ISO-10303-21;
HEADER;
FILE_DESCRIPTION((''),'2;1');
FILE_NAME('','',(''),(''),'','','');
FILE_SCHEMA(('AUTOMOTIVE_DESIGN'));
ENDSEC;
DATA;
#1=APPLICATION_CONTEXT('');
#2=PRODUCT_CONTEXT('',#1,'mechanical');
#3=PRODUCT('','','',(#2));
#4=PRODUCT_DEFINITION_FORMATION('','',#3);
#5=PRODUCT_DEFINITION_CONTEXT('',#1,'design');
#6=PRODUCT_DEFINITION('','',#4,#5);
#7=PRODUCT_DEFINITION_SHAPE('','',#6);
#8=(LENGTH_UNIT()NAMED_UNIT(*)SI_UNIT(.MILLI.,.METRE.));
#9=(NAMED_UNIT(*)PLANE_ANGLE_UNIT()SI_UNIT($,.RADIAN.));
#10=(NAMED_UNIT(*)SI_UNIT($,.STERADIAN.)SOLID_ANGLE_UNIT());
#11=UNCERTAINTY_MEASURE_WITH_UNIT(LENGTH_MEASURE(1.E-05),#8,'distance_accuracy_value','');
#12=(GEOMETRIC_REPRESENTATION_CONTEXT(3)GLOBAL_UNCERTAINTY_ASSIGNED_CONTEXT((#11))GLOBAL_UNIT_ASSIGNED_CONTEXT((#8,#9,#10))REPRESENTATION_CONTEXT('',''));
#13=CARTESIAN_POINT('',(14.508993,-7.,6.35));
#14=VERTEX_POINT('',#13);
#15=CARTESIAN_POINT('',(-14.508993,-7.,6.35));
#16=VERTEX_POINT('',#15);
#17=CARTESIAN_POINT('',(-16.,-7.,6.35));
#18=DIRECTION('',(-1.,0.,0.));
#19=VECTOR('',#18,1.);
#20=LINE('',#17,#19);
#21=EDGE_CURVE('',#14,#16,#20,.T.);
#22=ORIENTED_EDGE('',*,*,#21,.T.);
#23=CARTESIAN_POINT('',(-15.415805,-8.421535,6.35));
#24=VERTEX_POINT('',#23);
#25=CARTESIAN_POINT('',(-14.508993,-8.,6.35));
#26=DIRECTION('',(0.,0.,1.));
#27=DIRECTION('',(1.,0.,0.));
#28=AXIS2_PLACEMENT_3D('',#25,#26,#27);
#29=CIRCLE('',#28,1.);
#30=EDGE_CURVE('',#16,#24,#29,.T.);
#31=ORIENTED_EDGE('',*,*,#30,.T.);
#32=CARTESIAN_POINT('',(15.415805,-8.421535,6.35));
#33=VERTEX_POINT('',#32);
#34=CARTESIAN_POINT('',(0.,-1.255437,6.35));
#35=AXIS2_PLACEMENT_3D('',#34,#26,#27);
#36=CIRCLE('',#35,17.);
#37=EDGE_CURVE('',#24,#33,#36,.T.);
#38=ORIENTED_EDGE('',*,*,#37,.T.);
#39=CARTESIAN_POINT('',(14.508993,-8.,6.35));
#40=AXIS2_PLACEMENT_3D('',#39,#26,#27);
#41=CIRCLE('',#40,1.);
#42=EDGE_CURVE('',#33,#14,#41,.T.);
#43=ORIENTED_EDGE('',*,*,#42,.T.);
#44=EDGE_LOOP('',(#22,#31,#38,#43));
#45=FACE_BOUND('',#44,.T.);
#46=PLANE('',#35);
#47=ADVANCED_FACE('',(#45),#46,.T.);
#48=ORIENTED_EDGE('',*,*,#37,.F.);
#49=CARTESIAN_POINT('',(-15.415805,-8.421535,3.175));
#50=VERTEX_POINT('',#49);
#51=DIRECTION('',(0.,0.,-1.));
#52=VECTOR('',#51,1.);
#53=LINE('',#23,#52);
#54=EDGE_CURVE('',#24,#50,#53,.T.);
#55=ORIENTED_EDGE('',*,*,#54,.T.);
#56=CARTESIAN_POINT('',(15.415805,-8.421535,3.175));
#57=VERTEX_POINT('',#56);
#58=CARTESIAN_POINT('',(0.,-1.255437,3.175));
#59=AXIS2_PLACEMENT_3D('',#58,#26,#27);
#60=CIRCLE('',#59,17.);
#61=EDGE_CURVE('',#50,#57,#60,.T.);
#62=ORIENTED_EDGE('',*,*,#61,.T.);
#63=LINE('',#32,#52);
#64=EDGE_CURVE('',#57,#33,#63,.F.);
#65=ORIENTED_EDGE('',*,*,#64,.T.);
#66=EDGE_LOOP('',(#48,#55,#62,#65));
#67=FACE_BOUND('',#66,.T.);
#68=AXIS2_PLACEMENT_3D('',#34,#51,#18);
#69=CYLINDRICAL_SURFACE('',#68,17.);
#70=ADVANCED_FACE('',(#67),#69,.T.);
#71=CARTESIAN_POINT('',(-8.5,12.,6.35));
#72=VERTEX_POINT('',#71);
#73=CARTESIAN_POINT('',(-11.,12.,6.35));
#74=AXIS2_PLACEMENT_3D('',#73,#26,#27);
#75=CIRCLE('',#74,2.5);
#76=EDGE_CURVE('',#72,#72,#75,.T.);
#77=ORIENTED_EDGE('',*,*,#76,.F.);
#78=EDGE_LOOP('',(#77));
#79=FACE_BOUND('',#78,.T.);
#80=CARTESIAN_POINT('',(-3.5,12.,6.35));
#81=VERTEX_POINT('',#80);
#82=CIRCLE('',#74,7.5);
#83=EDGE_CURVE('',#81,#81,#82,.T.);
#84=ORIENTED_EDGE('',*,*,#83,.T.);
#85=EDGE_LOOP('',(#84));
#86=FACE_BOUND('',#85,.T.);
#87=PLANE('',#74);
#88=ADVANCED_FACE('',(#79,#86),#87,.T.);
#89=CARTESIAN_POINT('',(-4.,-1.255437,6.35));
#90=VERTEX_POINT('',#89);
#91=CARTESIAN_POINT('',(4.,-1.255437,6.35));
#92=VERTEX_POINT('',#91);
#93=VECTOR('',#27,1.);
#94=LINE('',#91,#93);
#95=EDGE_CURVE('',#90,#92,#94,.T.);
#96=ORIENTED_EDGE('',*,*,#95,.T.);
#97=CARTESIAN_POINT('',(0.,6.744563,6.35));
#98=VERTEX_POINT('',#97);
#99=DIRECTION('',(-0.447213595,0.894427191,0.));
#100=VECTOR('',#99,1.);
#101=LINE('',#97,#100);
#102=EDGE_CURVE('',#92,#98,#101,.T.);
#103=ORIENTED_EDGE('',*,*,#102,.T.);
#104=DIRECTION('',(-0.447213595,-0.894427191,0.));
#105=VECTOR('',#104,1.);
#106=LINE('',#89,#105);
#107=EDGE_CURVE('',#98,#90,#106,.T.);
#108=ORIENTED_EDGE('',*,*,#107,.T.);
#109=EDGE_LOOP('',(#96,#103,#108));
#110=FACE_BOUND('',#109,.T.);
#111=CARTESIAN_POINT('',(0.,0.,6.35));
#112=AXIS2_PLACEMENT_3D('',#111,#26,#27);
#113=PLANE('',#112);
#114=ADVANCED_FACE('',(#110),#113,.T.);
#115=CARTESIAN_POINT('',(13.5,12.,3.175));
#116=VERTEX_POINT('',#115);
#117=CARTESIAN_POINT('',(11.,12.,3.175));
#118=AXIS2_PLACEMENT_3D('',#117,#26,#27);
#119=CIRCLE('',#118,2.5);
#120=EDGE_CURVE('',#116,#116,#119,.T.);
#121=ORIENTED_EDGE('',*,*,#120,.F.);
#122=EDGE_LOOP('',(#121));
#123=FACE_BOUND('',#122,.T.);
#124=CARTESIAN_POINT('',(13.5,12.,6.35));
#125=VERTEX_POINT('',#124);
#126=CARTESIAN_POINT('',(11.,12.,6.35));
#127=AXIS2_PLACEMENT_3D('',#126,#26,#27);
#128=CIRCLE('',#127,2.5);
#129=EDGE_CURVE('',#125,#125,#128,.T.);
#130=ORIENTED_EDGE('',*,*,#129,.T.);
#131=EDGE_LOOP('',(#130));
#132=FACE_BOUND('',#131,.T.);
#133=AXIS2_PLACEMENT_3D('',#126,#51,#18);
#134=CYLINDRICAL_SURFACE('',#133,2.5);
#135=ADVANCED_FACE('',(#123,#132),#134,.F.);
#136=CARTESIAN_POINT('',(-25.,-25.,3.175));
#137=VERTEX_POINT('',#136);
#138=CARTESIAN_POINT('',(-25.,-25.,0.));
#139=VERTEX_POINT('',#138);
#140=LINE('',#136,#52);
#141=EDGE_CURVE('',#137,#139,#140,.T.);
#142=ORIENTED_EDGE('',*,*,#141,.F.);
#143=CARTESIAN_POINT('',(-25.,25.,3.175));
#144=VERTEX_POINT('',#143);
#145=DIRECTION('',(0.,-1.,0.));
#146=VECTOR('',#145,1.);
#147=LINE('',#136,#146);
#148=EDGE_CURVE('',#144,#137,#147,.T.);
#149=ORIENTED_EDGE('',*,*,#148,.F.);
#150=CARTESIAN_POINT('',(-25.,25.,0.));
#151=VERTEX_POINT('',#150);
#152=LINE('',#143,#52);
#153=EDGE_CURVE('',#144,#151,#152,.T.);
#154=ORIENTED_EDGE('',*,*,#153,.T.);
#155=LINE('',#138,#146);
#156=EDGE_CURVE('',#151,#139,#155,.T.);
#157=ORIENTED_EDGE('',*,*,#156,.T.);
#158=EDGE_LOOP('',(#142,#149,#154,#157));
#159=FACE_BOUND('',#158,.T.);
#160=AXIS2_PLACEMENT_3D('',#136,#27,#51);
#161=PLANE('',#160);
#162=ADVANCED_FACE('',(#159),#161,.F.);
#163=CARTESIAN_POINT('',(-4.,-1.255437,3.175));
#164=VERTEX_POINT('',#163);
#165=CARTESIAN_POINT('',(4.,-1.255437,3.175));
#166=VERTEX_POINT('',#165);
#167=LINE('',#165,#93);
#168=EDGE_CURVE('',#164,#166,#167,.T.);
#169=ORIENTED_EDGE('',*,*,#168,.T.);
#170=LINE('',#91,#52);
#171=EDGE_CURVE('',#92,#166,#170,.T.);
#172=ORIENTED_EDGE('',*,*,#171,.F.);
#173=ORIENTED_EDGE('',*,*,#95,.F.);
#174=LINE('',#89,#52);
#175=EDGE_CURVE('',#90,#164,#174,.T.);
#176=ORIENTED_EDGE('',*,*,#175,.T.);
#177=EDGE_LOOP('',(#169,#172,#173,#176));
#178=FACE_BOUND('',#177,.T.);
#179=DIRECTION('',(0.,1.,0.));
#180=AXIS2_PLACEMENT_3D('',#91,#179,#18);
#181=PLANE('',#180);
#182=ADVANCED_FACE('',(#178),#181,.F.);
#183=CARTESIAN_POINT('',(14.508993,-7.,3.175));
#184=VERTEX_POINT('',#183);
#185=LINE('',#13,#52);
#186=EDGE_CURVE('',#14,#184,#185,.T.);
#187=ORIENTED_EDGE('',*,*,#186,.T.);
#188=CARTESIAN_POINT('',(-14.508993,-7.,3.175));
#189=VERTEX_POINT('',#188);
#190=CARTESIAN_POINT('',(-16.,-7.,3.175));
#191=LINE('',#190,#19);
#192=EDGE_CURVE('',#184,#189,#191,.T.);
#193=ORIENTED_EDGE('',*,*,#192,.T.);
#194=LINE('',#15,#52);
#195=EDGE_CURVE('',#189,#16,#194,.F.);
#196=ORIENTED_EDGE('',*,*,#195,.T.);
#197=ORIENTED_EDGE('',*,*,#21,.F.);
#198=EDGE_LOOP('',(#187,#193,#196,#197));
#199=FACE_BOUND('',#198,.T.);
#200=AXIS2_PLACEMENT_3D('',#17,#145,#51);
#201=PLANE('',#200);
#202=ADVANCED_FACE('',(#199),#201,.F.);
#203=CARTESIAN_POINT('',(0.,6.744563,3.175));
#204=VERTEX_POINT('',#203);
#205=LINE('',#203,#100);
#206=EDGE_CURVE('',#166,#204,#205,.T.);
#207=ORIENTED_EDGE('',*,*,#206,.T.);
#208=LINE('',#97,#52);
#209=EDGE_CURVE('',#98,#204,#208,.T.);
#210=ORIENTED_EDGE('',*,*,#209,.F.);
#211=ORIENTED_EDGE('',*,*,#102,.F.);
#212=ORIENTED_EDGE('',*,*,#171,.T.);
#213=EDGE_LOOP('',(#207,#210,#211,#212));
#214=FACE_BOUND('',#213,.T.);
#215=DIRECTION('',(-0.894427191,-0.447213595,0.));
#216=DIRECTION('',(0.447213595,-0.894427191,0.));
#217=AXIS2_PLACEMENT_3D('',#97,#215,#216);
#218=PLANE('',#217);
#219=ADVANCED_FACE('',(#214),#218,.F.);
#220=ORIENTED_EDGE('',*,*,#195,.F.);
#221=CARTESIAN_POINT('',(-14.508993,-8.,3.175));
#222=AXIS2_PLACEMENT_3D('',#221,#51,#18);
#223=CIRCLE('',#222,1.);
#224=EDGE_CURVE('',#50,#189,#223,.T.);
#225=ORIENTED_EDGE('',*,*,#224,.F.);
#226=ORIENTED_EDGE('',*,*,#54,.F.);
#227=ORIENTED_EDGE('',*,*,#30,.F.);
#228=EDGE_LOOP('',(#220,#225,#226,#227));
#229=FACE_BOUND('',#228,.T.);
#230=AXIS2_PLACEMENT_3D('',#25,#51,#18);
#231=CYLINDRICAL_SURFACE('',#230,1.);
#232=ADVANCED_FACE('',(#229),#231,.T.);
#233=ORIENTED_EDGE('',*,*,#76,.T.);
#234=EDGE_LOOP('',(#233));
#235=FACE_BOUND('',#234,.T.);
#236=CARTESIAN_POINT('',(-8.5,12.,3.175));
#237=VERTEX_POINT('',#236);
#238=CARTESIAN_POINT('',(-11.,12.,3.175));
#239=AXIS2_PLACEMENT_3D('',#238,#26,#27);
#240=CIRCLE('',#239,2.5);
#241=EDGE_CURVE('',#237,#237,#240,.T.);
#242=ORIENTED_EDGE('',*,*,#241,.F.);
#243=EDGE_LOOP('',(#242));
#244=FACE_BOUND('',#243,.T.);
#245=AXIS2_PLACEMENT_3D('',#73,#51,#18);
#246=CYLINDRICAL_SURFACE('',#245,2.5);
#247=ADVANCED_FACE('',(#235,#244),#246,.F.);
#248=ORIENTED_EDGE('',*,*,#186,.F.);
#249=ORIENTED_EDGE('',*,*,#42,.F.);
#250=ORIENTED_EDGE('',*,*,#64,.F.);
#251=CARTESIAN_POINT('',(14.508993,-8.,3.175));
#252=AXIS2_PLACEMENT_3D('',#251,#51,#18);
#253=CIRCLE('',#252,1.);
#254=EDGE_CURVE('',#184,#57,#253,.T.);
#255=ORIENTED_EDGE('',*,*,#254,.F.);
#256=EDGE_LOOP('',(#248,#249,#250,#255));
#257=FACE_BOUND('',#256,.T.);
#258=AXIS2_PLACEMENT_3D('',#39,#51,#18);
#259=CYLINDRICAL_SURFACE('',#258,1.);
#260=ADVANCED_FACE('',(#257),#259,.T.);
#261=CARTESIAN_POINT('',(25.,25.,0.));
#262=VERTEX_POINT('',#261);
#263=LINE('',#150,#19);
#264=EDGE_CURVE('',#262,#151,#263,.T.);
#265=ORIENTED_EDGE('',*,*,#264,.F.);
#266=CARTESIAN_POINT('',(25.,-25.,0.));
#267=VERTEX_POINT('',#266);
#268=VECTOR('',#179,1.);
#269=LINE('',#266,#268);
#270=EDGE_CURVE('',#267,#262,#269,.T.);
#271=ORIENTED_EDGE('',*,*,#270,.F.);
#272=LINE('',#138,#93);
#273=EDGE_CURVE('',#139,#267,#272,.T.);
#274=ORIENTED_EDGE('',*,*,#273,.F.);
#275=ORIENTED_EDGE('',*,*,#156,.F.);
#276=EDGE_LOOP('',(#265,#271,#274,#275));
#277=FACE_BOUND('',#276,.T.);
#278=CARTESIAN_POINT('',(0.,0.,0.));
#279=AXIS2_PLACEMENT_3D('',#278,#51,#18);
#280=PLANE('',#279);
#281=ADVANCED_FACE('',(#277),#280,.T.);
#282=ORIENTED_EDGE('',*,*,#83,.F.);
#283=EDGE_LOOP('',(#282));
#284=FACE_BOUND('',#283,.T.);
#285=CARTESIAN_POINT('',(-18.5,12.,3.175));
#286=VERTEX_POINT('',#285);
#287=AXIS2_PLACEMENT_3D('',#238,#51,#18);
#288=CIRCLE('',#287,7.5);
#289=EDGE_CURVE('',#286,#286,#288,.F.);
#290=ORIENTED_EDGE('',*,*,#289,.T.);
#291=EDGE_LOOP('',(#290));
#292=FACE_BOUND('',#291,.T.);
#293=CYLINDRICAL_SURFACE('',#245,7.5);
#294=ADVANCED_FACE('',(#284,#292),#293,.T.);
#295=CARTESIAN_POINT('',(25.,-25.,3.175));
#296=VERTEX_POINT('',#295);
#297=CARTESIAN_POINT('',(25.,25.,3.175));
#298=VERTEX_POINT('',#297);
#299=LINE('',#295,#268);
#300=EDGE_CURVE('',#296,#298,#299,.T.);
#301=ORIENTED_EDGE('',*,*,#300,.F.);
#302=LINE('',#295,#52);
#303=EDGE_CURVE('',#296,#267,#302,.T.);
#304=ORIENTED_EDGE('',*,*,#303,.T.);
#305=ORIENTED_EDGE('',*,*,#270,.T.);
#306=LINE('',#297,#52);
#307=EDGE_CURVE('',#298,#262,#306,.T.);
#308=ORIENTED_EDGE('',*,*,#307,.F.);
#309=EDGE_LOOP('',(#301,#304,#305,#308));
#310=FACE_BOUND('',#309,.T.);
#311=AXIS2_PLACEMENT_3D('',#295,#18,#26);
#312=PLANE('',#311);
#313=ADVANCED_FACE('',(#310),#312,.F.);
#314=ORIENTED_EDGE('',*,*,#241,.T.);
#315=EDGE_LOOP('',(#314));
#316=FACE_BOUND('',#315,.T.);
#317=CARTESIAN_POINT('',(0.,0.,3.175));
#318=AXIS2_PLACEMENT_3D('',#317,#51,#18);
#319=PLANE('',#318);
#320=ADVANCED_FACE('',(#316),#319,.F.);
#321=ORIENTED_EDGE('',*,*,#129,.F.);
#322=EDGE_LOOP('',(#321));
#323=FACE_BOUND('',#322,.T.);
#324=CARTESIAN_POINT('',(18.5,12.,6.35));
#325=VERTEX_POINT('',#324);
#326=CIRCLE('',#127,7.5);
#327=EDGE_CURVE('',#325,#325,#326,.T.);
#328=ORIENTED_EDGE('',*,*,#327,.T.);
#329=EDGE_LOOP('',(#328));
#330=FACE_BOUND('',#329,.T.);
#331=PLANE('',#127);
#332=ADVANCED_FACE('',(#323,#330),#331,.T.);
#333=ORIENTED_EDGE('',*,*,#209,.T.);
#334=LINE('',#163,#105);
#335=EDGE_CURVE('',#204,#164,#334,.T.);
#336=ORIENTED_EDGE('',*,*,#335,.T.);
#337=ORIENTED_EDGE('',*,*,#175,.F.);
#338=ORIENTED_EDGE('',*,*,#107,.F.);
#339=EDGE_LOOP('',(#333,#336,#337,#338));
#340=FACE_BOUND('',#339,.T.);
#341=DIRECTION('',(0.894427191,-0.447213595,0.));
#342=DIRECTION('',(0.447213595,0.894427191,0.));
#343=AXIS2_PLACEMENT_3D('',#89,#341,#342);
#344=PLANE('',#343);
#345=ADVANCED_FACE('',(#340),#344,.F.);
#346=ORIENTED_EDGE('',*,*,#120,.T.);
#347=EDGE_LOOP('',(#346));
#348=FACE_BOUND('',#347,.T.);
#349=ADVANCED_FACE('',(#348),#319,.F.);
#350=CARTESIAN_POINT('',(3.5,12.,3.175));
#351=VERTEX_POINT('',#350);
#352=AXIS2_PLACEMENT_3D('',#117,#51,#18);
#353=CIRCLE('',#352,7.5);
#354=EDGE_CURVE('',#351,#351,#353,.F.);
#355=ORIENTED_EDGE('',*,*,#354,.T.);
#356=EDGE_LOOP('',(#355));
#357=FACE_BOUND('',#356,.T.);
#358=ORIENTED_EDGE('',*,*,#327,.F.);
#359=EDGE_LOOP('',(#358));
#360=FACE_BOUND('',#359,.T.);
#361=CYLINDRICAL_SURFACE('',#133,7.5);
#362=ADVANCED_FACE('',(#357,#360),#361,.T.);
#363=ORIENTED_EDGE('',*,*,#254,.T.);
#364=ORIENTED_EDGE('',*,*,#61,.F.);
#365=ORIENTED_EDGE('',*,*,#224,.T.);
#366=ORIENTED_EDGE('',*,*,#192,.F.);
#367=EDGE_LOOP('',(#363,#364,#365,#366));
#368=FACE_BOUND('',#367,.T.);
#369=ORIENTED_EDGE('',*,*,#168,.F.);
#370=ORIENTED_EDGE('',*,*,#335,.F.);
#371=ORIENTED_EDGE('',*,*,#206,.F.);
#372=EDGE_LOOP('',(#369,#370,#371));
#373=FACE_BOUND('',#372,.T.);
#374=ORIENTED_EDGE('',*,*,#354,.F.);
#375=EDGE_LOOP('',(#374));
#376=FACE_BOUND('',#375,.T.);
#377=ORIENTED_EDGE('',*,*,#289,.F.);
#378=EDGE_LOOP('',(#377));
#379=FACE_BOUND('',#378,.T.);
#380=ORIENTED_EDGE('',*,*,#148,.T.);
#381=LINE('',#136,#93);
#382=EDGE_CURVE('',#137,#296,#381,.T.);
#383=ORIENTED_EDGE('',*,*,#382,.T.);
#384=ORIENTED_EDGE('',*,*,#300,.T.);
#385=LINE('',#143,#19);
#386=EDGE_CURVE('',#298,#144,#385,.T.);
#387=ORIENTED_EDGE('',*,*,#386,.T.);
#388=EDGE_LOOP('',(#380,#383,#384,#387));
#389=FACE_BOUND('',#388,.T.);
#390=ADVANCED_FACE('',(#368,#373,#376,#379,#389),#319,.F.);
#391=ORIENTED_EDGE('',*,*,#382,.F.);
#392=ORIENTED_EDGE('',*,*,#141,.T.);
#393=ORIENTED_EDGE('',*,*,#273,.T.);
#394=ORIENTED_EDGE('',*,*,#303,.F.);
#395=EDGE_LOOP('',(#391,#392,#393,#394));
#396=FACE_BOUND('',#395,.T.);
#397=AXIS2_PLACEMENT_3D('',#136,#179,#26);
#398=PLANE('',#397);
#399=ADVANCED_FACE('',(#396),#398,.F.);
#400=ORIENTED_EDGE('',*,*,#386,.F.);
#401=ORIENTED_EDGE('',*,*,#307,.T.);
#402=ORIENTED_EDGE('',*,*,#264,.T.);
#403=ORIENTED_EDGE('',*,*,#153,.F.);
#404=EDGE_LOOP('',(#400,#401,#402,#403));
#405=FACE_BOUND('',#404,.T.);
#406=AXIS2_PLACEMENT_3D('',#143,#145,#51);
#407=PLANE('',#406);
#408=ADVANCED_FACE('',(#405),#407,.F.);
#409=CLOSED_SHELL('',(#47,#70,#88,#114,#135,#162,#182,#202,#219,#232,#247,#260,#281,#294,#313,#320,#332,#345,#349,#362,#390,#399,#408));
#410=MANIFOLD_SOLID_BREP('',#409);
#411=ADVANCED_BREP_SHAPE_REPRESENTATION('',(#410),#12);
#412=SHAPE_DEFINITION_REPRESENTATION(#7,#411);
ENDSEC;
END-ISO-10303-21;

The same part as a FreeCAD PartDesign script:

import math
import FreeCAD as App
import Part
import Sketcher
Q = App.Units.Quantity


def edges_at(feature, points):
    """Names of the edges that pass closest to the given points."""
    edges = feature.Shape.Edges
    near = lambda p: min(range(len(edges)), key=lambda i: edges[i].distToShape(Part.Vertex(*p))[0])
    return sorted({f"Edge{near(p) + 1}" for p in points})

doc = App.newDocument("Part")
params = doc.addObject("Spreadsheet::Sheet", "Params")
for row, (alias, value) in enumerate([
    ("sketch1_width", "50 mm"),
    ("pad1_length", "3.175 mm"),
    ("sketch2_diameter", "15 mm"),
    ("sketch2_diameter2", "5 mm"),
    ("sketch2_radius", "17 mm"),
    ("sketch2_width", "32 mm"),
    ("sketch2_width2", "8 mm"),
    ("pad2_length", "3.175 mm"),
    ("fillet_radius", "1 mm"),
], start=1):
    params.set(f"A{row}", alias)
    params.set(f"B{row}", "=" + value)
    params.setAlias(f"B{row}", alias)

body = doc.addObject("PartDesign::Body", "Body")

sketch1 = body.newObject("Sketcher::SketchObject", "Sketch")
sketch1.AttachmentSupport = (doc.getObject("XY_Plane"), [""])
sketch1.MapMode = "FlatFace"
sketch1.addGeometry([
    Part.LineSegment(App.Vector(-25, 25, 0), App.Vector(-25, -25, 0)),
    Part.LineSegment(App.Vector(-25, -25, 0), App.Vector(25, -25, 0)),
    Part.LineSegment(App.Vector(25, -25, 0), App.Vector(25, 25, 0)),
    Part.LineSegment(App.Vector(25, 25, 0), App.Vector(-25, 25, 0)),
], False)
sketch1.addConstraint([
    Sketcher.Constraint("Coincident", 0, 2, 1, 1),
    Sketcher.Constraint("Coincident", 1, 2, 2, 1),
    Sketcher.Constraint("Coincident", 2, 2, 3, 1),
    Sketcher.Constraint("Coincident", 3, 2, 0, 1),
    Sketcher.Constraint("Vertical", 0),
    Sketcher.Constraint("Horizontal", 1),
    Sketcher.Constraint("Vertical", 2),
    Sketcher.Constraint("Horizontal", 3),
    Sketcher.Constraint("Symmetric", 0, 2, 2, 2, -1, 1),
    Sketcher.Constraint("Equal", 3, 0),
    Sketcher.Constraint("DistanceX", 1, 1, 1, 2, Q("50 mm")),
])
sketch1.setExpression("Constraints[10]", "Params.sketch1_width")
pad1 = body.newObject("PartDesign::Pad", "Pad")
pad1.Profile = sketch1
pad1.setExpression("Length", "Params.pad1_length")

sketch2 = body.newObject("Sketcher::SketchObject", "Sketch001")
sketch2.AttachmentSupport = (doc.getObject("XY_Plane"), [""])
sketch2.MapMode = "FlatFace"
sketch2.AttachmentOffset = App.Placement(App.Vector(0, 0, 3.175), App.Rotation())
sketch2.addGeometry([
    Part.Circle(App.Vector(-11, 12, 0), App.Vector(0, 0, 1), 7.5),
    Part.Circle(App.Vector(-11, 12, 0), App.Vector(0, 0, 1), 2.5),
    Part.Circle(App.Vector(11, 12, 0), App.Vector(0, 0, 1), 7.5),
    Part.Circle(App.Vector(11, 12, 0), App.Vector(0, 0, 1), 2.5),
    Part.LineSegment(App.Vector(16, -7, 0), App.Vector(-16, -7, 0)),
    Part.ArcOfCircle(Part.Circle(App.Vector(0, -1.3, 0), App.Vector(0, 0, 1), 17), math.radians(-160), math.radians(-20)),
    Part.LineSegment(App.Vector(4, -1.3, 0), App.Vector(0, 6.7, 0)),
    Part.LineSegment(App.Vector(0, 6.7, 0), App.Vector(-4, -1.3, 0)),
    Part.LineSegment(App.Vector(-4, -1.3, 0), App.Vector(4, -1.3, 0)),
], False)
sketch2.addConstraint([
    Sketcher.Constraint("Coincident", 4, 1, 5, 2),
    Sketcher.Constraint("Coincident", 5, 1, 4, 2),
    Sketcher.Constraint("Coincident", 6, 2, 7, 1),
    Sketcher.Constraint("Coincident", 7, 2, 8, 1),
    Sketcher.Constraint("Coincident", 8, 2, 6, 1),
    Sketcher.Constraint("Horizontal", 4),
    Sketcher.Constraint("Horizontal", 8),
    Sketcher.Constraint("Coincident", 1, 3, 0, 3),
    Sketcher.Constraint("Coincident", 3, 3, 2, 3),
    Sketcher.Constraint("Equal", 0, 2),
    Sketcher.Constraint("Equal", 1, 3),
    Sketcher.Constraint("Symmetric", 0, 3, 2, 3, -2),
    Sketcher.Constraint("PointOnObject", 5, 3, -2),
    Sketcher.Constraint("PointOnObject", 6, 2, -2),
    Sketcher.Constraint("Horizontal", 5, 3, 7, 2),
    Sketcher.Constraint("Equal", 6, 7),
    Sketcher.Constraint("Diameter", 0, Q("15 mm")),
    Sketcher.Constraint("Diameter", 1, Q("5 mm")),
    Sketcher.Constraint("Radius", 5, Q("17 mm")),
    Sketcher.Constraint("DistanceX", 4, 2, 4, 1, Q("32 mm")),
    Sketcher.Constraint("DistanceX", 8, 1, 8, 2, Q("8 mm")),
    Sketcher.Constraint("DistanceX", 0, 3, -1, 1, Q("11 mm")),
    Sketcher.Constraint("DistanceY", -1, 1, 0, 3, Q("12 mm")),
    Sketcher.Constraint("DistanceY", 4, 1, -1, 1, Q("7 mm")),
    Sketcher.Constraint("DistanceY", 5, 3, 6, 2, Q("8 mm")),
])
sketch2.setExpression("Constraints[16]", "Params.sketch2_diameter")
sketch2.setExpression("Constraints[17]", "Params.sketch2_diameter2")
sketch2.setExpression("Constraints[18]", "Params.sketch2_radius")
sketch2.setExpression("Constraints[19]", "Params.sketch2_width")
sketch2.setExpression("Constraints[20]", "Params.sketch2_width2")
pad2 = body.newObject("PartDesign::Pad", "Pad001")
pad2.Profile = sketch2
pad2.setExpression("Length", "Params.pad2_length")
doc.recompute()

fillet = body.newObject("PartDesign::Fillet", "Fillet")
fillet.Base = (pad2, edges_at(pad2, [(-16, -7, 4.763), (16, -7, 4.763)]))
fillet.setExpression("Radius", "Params.fillet_radius")

doc.recompute()
